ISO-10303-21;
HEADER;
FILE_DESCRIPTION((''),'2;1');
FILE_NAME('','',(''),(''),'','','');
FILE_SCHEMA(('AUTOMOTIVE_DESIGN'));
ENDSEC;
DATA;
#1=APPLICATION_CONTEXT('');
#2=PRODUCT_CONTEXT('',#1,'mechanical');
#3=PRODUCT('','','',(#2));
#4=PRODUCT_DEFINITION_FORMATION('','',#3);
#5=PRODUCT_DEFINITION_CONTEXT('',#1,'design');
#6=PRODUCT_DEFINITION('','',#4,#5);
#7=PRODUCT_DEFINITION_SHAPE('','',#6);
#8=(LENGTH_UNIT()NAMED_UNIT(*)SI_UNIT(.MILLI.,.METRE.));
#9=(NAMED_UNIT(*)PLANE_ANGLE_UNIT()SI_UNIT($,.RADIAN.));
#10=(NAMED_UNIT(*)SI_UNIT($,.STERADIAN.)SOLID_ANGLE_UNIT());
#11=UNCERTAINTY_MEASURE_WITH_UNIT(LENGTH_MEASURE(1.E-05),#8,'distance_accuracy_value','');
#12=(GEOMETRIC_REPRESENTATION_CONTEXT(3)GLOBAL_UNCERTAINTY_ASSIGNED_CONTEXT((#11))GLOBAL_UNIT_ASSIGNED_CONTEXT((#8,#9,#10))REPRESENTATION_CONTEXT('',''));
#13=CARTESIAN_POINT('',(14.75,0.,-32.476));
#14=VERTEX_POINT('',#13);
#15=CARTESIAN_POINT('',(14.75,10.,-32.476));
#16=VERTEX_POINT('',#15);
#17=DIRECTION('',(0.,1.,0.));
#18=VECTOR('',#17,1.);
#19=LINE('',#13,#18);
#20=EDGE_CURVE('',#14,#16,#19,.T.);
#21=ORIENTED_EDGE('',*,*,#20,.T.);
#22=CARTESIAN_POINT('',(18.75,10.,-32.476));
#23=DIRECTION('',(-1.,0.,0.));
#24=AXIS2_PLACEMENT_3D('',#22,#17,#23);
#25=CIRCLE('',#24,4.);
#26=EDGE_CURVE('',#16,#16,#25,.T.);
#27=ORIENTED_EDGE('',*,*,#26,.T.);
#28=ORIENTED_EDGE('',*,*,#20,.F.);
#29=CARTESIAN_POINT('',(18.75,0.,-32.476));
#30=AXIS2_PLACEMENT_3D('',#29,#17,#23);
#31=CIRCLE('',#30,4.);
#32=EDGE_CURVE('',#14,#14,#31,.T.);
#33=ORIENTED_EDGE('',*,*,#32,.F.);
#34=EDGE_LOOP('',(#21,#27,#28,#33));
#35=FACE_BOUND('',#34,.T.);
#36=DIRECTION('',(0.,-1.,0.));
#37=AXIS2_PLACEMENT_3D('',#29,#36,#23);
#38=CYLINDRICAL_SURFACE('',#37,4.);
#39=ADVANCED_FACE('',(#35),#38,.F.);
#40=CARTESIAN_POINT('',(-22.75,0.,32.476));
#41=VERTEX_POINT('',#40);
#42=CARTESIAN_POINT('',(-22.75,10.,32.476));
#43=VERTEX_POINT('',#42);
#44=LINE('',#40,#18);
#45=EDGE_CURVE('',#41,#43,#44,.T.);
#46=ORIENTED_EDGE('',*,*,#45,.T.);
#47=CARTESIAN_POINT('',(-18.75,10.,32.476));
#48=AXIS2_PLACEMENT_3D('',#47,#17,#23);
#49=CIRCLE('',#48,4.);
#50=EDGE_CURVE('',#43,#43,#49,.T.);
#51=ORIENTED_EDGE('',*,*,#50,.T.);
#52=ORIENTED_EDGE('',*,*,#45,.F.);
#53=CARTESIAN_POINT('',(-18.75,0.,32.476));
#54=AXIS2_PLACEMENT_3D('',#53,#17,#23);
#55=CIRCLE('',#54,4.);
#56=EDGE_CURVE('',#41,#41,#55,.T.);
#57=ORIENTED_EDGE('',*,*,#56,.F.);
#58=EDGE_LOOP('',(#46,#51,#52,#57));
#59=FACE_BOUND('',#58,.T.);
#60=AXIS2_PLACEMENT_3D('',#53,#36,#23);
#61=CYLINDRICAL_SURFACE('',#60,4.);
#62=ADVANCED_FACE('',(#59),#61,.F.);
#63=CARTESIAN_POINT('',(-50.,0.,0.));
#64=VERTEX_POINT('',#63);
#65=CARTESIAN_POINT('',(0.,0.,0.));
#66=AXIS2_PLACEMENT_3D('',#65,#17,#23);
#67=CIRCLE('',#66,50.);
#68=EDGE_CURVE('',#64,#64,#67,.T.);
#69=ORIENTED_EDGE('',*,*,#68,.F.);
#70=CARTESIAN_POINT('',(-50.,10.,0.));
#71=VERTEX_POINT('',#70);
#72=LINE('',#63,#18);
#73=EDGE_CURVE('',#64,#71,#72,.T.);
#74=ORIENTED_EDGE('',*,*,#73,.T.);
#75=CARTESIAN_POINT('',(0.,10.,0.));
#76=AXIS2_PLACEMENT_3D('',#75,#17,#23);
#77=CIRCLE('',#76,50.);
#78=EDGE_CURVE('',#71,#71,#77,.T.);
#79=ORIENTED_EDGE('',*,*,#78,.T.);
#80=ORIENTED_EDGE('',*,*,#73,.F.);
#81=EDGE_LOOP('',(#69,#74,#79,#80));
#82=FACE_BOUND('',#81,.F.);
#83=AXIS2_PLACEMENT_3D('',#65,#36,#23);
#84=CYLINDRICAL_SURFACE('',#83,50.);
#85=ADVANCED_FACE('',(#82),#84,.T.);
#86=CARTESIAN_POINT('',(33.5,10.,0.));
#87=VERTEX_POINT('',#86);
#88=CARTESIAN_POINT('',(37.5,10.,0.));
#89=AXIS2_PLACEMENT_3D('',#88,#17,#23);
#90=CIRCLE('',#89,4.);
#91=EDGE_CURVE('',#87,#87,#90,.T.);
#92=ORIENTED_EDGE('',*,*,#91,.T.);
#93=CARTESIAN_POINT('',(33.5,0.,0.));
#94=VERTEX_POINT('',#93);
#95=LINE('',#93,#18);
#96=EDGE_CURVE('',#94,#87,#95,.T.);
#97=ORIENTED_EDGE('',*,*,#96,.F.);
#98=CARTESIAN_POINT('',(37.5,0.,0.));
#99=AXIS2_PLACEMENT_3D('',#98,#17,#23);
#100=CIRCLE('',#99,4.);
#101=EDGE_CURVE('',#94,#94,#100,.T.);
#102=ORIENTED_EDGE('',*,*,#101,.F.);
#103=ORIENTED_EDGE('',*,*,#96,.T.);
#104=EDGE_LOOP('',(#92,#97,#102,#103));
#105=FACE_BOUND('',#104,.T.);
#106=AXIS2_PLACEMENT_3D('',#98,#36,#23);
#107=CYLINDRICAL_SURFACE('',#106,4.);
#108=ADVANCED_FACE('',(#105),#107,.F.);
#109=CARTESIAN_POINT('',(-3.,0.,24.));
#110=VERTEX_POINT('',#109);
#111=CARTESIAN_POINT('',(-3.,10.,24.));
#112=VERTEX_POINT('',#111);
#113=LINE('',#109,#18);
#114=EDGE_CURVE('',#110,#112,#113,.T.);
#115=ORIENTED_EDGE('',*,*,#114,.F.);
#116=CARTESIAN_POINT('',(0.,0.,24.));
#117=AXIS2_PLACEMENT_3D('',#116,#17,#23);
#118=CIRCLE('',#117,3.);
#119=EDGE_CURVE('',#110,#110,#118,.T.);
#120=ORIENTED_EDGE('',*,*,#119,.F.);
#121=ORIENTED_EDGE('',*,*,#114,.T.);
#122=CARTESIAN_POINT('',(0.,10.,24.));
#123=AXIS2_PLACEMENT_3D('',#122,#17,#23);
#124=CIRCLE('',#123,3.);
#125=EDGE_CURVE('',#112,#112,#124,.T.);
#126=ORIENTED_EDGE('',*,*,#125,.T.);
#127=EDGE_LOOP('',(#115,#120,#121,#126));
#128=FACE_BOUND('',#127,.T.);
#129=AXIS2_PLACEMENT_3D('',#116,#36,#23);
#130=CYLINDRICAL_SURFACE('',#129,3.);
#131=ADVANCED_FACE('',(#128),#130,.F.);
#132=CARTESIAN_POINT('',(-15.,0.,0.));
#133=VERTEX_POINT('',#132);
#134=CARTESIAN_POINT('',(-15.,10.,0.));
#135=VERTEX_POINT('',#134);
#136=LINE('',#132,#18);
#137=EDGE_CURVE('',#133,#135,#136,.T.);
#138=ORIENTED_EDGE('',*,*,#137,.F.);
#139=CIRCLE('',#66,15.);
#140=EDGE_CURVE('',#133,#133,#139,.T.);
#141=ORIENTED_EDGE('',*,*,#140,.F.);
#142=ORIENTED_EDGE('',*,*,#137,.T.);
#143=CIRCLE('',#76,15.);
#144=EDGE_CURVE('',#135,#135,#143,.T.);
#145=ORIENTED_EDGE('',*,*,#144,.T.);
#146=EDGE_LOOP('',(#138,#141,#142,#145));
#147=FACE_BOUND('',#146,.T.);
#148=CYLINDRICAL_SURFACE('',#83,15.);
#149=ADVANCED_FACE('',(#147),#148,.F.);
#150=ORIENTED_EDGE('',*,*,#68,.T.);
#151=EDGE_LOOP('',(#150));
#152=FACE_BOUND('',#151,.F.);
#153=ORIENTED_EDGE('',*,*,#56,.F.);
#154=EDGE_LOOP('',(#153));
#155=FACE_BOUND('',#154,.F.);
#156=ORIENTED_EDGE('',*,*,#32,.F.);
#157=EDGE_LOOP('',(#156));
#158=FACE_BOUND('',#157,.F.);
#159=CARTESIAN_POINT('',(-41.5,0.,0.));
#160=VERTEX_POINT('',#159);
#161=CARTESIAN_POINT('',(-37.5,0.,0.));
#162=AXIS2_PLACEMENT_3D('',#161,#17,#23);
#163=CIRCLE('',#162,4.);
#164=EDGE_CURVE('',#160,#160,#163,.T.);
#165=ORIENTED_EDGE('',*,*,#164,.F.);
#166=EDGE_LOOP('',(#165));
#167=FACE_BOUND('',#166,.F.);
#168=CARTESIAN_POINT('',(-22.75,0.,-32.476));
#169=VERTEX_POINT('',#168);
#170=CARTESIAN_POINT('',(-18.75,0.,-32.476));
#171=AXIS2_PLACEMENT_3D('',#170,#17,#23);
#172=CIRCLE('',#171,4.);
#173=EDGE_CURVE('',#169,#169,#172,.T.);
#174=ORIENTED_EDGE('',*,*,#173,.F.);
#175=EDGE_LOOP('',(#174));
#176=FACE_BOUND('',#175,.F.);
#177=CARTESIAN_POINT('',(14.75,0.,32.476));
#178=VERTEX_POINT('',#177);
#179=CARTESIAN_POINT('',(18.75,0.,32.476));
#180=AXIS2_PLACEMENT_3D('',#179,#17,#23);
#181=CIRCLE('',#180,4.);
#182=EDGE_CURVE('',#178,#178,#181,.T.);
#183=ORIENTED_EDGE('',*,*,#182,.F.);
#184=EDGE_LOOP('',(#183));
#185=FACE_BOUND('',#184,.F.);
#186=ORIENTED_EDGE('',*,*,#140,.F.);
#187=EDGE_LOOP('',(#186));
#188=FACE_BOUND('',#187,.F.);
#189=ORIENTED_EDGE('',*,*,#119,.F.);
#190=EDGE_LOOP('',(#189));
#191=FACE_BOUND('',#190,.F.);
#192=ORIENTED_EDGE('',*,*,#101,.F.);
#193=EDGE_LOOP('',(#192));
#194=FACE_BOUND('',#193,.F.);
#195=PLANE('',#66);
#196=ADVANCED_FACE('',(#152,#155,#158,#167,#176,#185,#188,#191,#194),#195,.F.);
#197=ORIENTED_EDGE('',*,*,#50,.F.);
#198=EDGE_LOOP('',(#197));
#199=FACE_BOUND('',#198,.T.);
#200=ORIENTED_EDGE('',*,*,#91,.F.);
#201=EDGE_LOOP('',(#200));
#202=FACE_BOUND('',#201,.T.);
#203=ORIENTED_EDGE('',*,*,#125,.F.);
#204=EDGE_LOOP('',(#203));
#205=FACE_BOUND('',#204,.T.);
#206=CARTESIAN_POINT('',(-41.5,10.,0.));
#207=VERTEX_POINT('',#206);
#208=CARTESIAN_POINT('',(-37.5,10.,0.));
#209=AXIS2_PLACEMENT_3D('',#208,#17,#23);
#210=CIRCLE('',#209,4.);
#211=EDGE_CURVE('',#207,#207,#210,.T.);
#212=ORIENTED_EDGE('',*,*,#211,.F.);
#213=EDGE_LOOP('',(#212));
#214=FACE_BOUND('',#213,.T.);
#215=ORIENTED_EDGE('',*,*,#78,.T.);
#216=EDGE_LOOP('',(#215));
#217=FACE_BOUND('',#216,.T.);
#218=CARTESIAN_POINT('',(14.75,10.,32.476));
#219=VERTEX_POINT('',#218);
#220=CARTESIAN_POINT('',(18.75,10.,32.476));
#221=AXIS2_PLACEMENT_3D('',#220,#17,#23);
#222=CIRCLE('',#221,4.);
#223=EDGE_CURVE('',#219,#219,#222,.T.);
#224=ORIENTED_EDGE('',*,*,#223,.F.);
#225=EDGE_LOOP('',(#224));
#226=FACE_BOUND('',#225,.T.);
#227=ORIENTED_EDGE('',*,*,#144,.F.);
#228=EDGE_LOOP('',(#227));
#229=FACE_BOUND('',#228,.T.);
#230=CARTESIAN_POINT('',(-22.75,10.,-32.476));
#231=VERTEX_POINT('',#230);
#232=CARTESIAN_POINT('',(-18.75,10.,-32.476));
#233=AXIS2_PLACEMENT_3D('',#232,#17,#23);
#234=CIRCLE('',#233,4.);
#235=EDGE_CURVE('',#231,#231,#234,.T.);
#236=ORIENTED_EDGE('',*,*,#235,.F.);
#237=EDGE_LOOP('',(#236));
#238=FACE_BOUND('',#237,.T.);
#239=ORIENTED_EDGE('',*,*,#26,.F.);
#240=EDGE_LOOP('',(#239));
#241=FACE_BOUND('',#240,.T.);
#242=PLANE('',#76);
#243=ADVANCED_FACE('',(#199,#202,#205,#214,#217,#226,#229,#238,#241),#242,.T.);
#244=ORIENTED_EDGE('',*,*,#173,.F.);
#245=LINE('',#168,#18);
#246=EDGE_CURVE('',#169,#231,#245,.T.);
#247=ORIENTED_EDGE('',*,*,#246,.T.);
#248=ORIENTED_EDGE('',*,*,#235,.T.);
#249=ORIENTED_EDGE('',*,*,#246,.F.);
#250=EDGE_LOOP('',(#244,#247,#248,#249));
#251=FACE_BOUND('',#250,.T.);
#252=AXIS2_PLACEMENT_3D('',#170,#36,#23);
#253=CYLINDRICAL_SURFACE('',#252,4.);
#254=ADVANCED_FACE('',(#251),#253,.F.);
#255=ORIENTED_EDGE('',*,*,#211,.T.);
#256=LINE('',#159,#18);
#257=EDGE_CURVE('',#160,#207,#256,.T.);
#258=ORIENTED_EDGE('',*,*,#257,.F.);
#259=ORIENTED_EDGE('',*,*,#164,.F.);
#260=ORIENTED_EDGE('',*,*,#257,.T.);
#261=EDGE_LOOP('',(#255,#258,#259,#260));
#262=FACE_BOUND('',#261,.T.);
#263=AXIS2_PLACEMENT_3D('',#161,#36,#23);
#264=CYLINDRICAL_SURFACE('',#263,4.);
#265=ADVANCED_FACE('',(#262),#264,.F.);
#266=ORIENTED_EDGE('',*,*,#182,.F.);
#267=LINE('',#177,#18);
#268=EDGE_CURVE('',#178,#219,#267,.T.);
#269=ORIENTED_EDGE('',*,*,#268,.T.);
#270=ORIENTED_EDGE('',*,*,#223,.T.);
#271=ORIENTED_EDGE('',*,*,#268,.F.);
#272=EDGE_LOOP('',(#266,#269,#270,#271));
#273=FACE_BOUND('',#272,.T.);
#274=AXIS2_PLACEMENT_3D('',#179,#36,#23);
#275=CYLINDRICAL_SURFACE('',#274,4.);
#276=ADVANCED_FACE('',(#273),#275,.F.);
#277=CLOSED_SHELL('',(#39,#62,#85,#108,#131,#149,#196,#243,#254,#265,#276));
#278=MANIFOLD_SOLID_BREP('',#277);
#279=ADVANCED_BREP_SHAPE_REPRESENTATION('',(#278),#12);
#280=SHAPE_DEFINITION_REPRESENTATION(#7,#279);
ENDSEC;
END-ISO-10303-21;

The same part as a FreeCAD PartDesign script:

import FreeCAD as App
import Part
import Sketcher
from FreeCAD import Vector

doc = App.newDocument("Part")
params = doc.addObject("Spreadsheet::Sheet", "Params")
for row, (alias, value) in enumerate([
    ("sketch1_diameter", "100 mm"),
    ("sketch1_diameter2", "8 mm"),
    ("sketch1_diameter3", "30 mm"),
    ("sketch1_diameter4", "6 mm"),
    ("pad1_length", "10 mm"),
], start=1):
    params.set(f"A{row}", alias)
    params.set(f"B{row}", "=" + value)
    params.setAlias(f"B{row}", alias)

body = doc.addObject("PartDesign::Body", "Body")

sketch1 = body.newObject("Sketcher::SketchObject", "Sketch")
sketch1.AttachmentSupport = (doc.getObject("XZ_Plane"), [""])
sketch1.MapMode = "FlatFace"
sketch1.addGeometry([
    Part.Circle(Vector(0, 0, 0), Vector(0, 0, 1), 50),
    Part.Circle(Vector(18.8, -32.5, 0), Vector(0, 0, 1), 4),
    Part.Circle(Vector(-18.8, -32.5, 0), Vector(0, 0, 1), 4),
    Part.Circle(Vector(37.5, 0, 0), Vector(0, 0, 1), 4),
    Part.Circle(Vector(18.8, 32.5, 0), Vector(0, 0, 1), 4),
    Part.Circle(Vector(0, 0, 0), Vector(0, 0, 1), 15),
    Part.Circle(Vector(0, 24, 0), Vector(0, 0, 1), 3),
    Part.Circle(Vector(-37.5, 0, 0), Vector(0, 0, 1), 4),
    Part.Circle(Vector(-18.8, 32.5, 0), Vector(0, 0, 1), 4),
], False)
sketch1.addConstraint([
    Sketcher.Constraint("Coincident", 0, 3, -1, 1),
    Sketcher.Constraint("Coincident", 5, 3, -1, 1),
    Sketcher.Constraint("Equal", 1, 2),
    Sketcher.Constraint("Equal", 2, 3),
    Sketcher.Constraint("Equal", 3, 4),
    Sketcher.Constraint("Equal", 4, 7),
    Sketcher.Constraint("Equal", 7, 8),
    Sketcher.Constraint("Symmetric", 2, 3, 4, 3, -1, 1),
    Sketcher.Constraint("Symmetric", 3, 3, 7, 3, -1, 1),
    Sketcher.Constraint("Symmetric", 1, 3, 8, 3, -1, 1),
    Sketcher.Constraint("Symmetric", 1, 3, 2, 3, -2),
    Sketcher.Constraint("PointOnObject", 3, 3, -1),
    Sketcher.Constraint("PointOnObject", 6, 3, -2),
    Sketcher.Constraint("Diameter", 0, 100.0),
    Sketcher.Constraint("Diameter", 1, 8.0),
    Sketcher.Constraint("Diameter", 5, 30.0),
    Sketcher.Constraint("Diameter", 6, 6.0),
    Sketcher.Constraint("DistanceY", -1, 1, 6, 3, 24.0),
    Sketcher.Constraint("DistanceX", -1, 1, 3, 3, 37.5),
    Sketcher.Constraint("DistanceX", 2, 3, 1, 3, 37.5),
    Sketcher.Constraint("DistanceY", 1, 3, -1, 1, 32.476),
])
sketch1.setExpression("Constraints[13]", "Params.sketch1_diameter")
sketch1.setExpression("Constraints[14]", "Params.sketch1_diameter2")
sketch1.setExpression("Constraints[15]", "Params.sketch1_diameter3")
sketch1.setExpression("Constraints[16]", "Params.sketch1_diameter4")
pad1 = body.newObject("PartDesign::Pad", "Pad")
pad1.Profile = sketch1
pad1.setExpression("Length", "Params.pad1_length")
pad1.Reversed = True

doc.recompute()
